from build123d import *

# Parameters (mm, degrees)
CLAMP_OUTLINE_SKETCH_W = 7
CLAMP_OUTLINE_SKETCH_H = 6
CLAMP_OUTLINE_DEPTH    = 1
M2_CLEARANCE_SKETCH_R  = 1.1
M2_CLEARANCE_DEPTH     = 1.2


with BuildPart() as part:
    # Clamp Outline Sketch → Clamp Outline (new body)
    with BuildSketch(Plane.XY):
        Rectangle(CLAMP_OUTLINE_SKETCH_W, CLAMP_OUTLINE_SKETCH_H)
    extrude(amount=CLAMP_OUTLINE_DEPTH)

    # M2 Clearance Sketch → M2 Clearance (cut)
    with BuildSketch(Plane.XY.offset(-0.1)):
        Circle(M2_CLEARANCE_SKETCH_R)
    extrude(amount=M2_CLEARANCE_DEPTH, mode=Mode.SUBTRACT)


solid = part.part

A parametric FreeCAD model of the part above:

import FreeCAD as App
import Part
import Sketcher
from FreeCAD import Vector

doc = App.newDocument("Part")
body = doc.addObject("PartDesign::Body", "Body")

# Sketch on XY plane
sketch1 = body.newObject("Sketcher::SketchObject", "Sketch")
sketch1.AttachmentSupport = (doc.getObject("XY_Plane"), [""])
sketch1.MapMode = "FlatFace"
sketch1.addGeometry([
    Part.LineSegment(Vector(-4, 3, 0), Vector(-4, -3, 0)),
    Part.LineSegment(Vector(-4, -3, 0), Vector(4, -3, 0)),
    Part.LineSegment(Vector(4, -3, 0), Vector(4, 3, 0)),
    Part.LineSegment(Vector(4, 3, 0), Vector(-4, 3, 0)),
], False)
sketch1.addConstraint([
    Sketcher.Constraint("Coincident", 0, 2, 1, 1),
    Sketcher.Constraint("Coincident", 1, 2, 2, 1),
    Sketcher.Constraint("Coincident", 2, 2, 3, 1),
    Sketcher.Constraint("Coincident", 3, 2, 0, 1),
    Sketcher.Constraint("Vertical", 0),
    Sketcher.Constraint("Horizontal", 1),
    Sketcher.Constraint("Vertical", 2),
    Sketcher.Constraint("Horizontal", 3),
    Sketcher.Constraint("Symmetric", 0, 2, 2, 2, -1, 1),
    Sketcher.Constraint("DistanceX", 1, 1, 1, 2, 7.0),
    Sketcher.Constraint("DistanceY", 0, 2, 0, 1, 6.0),
])
pad1 = body.newObject("PartDesign::Pad", "Pad")
pad1.Profile = sketch1
pad1.Length = 1

# Sketch on XY plane
sketch2 = body.newObject("Sketcher::SketchObject", "Sketch001")
sketch2.AttachmentSupport = (doc.getObject("XY_Plane"), [""])
sketch2.MapMode = "FlatFace"
sketch2.AttachmentOffset = App.Placement(Vector(0, 0, -0.1), App.Rotation())
sketch2.addGeometry(Part.Circle(Vector(0, 0, 0), Vector(0, 0, 1), 1.1), False)
sketch2.addConstraint([
    Sketcher.Constraint("Coincident", 0, 3, -1, 1),
    Sketcher.Constraint("Diameter", 0, 2.2),
])
pocket1 = body.newObject("PartDesign::Pocket", "Pocket")
pocket1.Profile = sketch2
pocket1.Length = 1.2
pocket1.Reversed = True

doc.recompute()
